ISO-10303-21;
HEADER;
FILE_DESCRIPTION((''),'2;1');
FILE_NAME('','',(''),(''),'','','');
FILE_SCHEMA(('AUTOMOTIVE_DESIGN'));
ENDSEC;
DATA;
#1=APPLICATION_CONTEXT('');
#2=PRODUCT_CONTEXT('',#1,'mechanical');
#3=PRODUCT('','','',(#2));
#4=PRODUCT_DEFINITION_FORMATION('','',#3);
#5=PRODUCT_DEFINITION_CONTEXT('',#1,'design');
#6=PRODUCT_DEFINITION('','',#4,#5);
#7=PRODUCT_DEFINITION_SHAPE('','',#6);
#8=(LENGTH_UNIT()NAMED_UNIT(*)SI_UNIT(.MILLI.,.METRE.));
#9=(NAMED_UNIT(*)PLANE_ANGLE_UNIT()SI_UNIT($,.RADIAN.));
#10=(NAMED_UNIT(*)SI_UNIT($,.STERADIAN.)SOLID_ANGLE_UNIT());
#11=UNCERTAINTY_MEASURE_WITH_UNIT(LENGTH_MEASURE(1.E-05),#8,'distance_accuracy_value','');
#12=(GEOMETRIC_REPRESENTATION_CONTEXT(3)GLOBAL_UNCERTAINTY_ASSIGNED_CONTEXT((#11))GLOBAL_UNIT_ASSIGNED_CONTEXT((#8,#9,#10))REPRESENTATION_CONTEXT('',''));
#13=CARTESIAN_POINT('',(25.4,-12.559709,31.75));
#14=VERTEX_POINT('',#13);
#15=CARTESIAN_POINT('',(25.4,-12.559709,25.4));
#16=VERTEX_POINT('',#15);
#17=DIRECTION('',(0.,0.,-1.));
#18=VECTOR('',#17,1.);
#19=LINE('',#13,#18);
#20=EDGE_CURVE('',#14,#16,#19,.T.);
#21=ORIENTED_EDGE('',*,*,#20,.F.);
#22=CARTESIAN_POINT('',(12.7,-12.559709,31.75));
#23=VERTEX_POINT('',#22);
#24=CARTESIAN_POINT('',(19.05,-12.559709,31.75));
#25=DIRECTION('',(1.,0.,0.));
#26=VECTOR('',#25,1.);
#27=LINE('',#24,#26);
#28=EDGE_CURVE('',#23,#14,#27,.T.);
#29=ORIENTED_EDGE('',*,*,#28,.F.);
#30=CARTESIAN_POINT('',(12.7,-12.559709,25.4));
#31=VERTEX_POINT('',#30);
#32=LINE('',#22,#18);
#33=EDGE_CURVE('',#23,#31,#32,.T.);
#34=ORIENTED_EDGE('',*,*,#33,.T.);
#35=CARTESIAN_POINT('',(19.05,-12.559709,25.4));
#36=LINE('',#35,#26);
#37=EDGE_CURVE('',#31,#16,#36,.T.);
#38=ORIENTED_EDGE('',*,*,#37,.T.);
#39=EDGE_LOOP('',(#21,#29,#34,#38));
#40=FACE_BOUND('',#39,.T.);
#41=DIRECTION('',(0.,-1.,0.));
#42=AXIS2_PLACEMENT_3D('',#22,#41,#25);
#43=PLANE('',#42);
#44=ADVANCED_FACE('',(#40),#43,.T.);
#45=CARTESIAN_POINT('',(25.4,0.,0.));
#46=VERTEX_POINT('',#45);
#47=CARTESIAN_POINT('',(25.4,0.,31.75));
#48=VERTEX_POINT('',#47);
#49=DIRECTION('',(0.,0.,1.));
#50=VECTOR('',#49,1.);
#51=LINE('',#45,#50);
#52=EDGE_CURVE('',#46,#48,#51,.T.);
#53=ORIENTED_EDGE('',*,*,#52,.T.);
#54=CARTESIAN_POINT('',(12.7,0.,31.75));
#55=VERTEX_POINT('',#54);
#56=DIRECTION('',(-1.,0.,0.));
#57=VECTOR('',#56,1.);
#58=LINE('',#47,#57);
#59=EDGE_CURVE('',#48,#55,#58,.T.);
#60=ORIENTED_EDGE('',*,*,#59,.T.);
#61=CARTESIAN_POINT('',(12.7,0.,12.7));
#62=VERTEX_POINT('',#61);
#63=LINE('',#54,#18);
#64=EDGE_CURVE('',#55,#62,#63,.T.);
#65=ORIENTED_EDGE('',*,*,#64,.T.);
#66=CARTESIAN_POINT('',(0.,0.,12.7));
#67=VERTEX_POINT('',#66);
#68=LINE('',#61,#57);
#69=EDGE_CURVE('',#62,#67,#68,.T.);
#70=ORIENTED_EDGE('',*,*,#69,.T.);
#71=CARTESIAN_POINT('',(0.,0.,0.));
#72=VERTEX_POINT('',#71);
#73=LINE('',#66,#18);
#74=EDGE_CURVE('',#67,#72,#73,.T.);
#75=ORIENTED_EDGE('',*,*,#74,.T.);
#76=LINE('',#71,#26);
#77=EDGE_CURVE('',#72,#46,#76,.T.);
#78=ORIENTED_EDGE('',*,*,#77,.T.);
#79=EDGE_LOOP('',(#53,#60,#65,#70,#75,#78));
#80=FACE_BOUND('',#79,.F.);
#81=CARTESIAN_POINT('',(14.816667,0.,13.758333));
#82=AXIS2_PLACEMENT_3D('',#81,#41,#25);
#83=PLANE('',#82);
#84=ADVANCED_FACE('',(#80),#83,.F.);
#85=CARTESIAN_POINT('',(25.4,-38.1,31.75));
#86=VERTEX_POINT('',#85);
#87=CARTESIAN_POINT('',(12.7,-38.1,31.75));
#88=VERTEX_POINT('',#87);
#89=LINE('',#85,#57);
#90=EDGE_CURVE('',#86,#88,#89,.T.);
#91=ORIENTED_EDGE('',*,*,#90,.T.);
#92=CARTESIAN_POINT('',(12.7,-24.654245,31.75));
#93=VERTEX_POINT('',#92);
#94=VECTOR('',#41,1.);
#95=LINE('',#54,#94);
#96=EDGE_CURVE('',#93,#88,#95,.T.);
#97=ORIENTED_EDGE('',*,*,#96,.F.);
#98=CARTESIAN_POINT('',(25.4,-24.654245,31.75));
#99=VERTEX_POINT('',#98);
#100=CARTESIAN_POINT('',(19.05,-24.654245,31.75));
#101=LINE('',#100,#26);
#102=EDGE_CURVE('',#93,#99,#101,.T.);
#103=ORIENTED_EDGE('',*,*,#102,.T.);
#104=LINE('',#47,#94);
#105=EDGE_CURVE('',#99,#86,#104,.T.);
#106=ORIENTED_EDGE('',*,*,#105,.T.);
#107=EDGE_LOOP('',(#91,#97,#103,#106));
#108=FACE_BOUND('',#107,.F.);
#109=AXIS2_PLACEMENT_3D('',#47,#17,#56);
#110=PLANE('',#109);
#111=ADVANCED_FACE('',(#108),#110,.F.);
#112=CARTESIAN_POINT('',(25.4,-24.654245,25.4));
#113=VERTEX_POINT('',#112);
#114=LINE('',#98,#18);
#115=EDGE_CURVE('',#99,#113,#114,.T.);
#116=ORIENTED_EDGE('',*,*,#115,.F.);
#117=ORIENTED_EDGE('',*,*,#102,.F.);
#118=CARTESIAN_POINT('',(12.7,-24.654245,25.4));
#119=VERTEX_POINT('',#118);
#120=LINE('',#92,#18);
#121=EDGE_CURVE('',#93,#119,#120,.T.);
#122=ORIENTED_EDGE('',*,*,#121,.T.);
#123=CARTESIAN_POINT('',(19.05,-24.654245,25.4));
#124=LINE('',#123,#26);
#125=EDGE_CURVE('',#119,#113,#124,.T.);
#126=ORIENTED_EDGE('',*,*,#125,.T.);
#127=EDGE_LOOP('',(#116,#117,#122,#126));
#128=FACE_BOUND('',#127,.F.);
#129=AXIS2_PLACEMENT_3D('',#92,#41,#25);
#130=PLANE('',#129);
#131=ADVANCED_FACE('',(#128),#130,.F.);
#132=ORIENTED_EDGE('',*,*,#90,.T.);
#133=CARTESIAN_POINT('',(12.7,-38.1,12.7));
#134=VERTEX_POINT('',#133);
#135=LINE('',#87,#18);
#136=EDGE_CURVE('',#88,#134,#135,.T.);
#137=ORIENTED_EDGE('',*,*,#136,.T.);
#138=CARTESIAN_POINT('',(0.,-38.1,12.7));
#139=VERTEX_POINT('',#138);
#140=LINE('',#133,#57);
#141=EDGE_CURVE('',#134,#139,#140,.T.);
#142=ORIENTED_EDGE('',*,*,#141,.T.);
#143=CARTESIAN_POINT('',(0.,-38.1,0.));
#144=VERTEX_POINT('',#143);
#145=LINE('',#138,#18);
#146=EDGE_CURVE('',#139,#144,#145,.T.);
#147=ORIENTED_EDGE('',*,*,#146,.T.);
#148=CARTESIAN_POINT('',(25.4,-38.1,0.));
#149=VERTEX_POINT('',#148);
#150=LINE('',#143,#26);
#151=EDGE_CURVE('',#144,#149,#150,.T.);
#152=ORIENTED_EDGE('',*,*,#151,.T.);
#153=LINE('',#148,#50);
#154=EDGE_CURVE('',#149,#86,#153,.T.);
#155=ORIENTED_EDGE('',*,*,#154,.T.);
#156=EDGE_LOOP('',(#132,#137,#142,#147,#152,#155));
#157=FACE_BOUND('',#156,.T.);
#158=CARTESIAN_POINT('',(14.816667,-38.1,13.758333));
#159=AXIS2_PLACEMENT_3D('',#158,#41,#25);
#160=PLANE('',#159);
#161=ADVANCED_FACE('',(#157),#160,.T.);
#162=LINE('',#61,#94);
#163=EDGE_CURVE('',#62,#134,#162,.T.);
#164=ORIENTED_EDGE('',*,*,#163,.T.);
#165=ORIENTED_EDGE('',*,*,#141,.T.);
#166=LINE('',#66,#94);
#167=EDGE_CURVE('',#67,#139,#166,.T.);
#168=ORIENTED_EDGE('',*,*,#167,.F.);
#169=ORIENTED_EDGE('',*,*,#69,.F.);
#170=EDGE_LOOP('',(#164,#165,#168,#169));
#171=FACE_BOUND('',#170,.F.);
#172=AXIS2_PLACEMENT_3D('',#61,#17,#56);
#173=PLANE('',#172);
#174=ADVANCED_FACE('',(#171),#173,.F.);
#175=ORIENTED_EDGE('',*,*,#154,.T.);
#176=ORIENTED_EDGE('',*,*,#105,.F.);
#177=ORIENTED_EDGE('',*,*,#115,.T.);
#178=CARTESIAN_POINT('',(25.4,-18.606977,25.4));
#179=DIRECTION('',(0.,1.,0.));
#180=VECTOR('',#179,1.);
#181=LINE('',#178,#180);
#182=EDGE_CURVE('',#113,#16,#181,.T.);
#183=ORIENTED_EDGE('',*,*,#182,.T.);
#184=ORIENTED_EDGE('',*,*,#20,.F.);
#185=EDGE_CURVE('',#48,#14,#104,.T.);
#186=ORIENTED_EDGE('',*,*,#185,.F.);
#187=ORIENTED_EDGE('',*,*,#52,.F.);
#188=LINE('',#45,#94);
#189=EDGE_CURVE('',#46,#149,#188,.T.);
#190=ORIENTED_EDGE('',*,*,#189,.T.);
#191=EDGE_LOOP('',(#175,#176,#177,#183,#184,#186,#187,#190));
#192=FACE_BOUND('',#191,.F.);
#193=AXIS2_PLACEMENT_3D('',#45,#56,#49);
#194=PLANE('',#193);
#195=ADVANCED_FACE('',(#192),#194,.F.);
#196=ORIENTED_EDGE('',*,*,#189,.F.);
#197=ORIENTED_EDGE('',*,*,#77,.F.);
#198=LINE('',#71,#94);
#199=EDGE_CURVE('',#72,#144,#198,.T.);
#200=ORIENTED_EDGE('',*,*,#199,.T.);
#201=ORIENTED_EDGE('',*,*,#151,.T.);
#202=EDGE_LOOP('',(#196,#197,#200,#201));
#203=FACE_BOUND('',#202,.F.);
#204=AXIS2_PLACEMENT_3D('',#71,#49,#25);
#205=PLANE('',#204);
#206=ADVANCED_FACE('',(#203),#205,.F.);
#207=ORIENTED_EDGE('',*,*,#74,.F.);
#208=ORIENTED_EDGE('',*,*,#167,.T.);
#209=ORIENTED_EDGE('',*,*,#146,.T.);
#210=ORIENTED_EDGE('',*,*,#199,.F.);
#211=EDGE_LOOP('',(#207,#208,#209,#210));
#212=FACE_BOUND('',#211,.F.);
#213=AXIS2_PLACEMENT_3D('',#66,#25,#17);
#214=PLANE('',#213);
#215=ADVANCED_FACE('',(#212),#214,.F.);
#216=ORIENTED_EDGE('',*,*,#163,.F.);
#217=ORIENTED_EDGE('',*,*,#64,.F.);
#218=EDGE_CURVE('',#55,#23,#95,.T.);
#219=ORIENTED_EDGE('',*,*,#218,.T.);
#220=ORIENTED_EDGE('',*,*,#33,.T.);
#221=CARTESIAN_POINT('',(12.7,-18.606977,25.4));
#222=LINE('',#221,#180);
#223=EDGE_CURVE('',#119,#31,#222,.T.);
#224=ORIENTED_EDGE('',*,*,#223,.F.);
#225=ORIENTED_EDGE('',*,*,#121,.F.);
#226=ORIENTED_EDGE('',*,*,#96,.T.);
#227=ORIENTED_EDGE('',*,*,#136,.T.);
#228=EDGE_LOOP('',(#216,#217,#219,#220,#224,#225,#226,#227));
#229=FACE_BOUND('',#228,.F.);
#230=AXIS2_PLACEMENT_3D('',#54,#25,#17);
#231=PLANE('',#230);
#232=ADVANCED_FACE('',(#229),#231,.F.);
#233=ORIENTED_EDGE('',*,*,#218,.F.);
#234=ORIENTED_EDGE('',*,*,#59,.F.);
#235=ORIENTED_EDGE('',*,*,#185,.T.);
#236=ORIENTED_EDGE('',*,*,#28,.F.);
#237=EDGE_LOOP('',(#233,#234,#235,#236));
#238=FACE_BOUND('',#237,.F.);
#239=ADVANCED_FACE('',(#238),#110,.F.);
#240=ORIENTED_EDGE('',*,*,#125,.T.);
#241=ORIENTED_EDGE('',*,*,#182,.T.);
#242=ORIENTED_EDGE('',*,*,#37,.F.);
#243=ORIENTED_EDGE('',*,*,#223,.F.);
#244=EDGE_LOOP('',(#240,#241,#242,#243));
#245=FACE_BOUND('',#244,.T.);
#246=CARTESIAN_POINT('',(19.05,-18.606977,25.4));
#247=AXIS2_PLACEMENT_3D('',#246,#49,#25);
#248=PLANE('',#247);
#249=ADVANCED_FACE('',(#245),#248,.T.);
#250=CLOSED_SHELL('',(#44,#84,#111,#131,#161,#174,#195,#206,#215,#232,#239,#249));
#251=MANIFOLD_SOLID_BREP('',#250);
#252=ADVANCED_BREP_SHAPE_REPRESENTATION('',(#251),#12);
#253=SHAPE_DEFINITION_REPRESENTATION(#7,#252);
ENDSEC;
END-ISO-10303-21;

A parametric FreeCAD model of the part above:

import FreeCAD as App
import Part
import Sketcher
Q = App.Units.Quantity

doc = App.newDocument("Part")
body = doc.addObject("PartDesign::Body", "Body")

sketch1 = doc.addObject("Sketcher::SketchObject", "Sketch")
body.addObject(sketch1)
sketch1.AttachmentSupport = (doc.XZ_Plane, [""])
sketch1.MapMode = "FlatFace"
sketch1.addGeometry([
    Part.LineSegment(App.Vector(0, 12.7, 0), App.Vector(0, 0, 0)),
    Part.LineSegment(App.Vector(0, 0, 0), App.Vector(25.4, 0, 0)),
    Part.LineSegment(App.Vector(25.4, 0, 0), App.Vector(25.4, 31.75, 0)),
    Part.LineSegment(App.Vector(25.4, 31.75, 0), App.Vector(12.7, 31.75, 0)),
    Part.LineSegment(App.Vector(12.7, 31.75, 0), App.Vector(12.7, 12.7, 0)),
    Part.LineSegment(App.Vector(12.7, 12.7, 0), App.Vector(0, 12.7, 0)),
], False)
sketch1.addConstraint([
    Sketcher.Constraint("Coincident", 0, 2, 1, 1),
    Sketcher.Constraint("Coincident", 1, 2, 2, 1),
    Sketcher.Constraint("Coincident", 2, 2, 3, 1),
    Sketcher.Constraint("Coincident", 3, 2, 4, 1),
    Sketcher.Constraint("Coincident", 4, 2, 5, 1),
    Sketcher.Constraint("Coincident", 5, 2, 0, 1),
    Sketcher.Constraint("Vertical", 0),
    Sketcher.Constraint("Horizontal", 1),
    Sketcher.Constraint("Vertical", 2),
    Sketcher.Constraint("Horizontal", 3),
    Sketcher.Constraint("Vertical", 4),
    Sketcher.Constraint("Horizontal", 5),
    Sketcher.Constraint("Coincident", 0, 2, -1, 1),
    Sketcher.Constraint("Equal", 3, 5),
    Sketcher.Constraint("Equal", 5, 0),
    Sketcher.Constraint("DistanceX", 1, 1, 1, 2, Q("1 in")),
    Sketcher.Constraint("DistanceY", 2, 1, 2, 2, Q("1.25 in")),
])
pad1 = doc.addObject("PartDesign::Pad", "Pad")
body.addObject(pad1)
pad1.Profile = sketch1
pad1.Length = Q("1.5 in")

sketch2 = doc.addObject("Sketcher::SketchObject", "Sketch001")
body.addObject(sketch2)
sketch2.AttachmentSupport = (doc.XY_Plane, [""])
sketch2.MapMode = "FlatFace"
sketch2.AttachmentOffset = App.Placement(App.Vector(0, 0, 1.25 * 25.4), App.Rotation())
sketch2.addGeometry([
    Part.LineSegment(App.Vector(12.7, -12.559709, 0), App.Vector(12.7, -24.654245, 0)),
    Part.LineSegment(App.Vector(12.7, -24.654245, 0), App.Vector(25.4, -24.654245, 0)),
    Part.LineSegment(App.Vector(25.4, -24.654245, 0), App.Vector(25.4, -12.559709, 0)),
    Part.LineSegment(App.Vector(25.4, -12.559709, 0), App.Vector(12.7, -12.559709, 0)),
], False)
sketch2.addConstraint([
    Sketcher.Constraint("Coincident", 0, 2, 1, 1),
    Sketcher.Constraint("Coincident", 1, 2, 2, 1),
    Sketcher.Constraint("Coincident", 2, 2, 3, 1),
    Sketcher.Constraint("Coincident", 3, 2, 0, 1),
    Sketcher.Constraint("Vertical", 0),
    Sketcher.Constraint("Horizontal", 1),
    Sketcher.Constraint("Vertical", 2),
    Sketcher.Constraint("Horizontal", 3),
    Sketcher.Constraint("DistanceX", 1, 1, 1, 2, Q("0.5 in")),
    Sketcher.Constraint("DistanceX", -1, 1, 1, 2, Q("1 in")),
    Sketcher.Constraint("DistanceY", 0, 2, 0, 1, 12.094536),
    Sketcher.Constraint("DistanceY", 2, 2, -1, 1, 12.559709),
])
pocket1 = doc.addObject("PartDesign::Pocket", "Pocket")
body.addObject(pocket1)
pocket1.Profile = sketch2
pocket1.Length = Q("0.25 in")

doc.recompute()
